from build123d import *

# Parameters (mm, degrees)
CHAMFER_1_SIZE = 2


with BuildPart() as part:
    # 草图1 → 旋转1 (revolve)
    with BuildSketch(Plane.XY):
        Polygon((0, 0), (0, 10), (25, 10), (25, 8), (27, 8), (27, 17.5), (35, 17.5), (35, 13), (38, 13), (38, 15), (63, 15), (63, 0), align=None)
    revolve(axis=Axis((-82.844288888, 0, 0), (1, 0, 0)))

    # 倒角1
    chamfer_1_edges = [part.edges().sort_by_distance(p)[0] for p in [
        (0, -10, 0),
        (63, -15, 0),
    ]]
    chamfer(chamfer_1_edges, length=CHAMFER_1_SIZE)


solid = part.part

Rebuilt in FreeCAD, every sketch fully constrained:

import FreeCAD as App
import Part
import Sketcher

V = App.Vector
Q = App.Units.Quantity


def edges_at(feature, points):
    """Names of the edges that pass closest to the given points."""
    edges = feature.Shape.Edges
    near = lambda p: min(range(len(edges)), key=lambda i: edges[i].distToShape(Part.Vertex(*p))[0])
    return sorted({f"Edge{near(p) + 1}" for p in points})

doc = App.newDocument("Part")
body = doc.addObject("PartDesign::Body", "Body")

# Sketch on XY plane
sketch1 = body.newObject("Sketcher::SketchObject", "Sketch")
sketch1.AttachmentSupport = (doc.getObject("XY_Plane"), [""])
sketch1.MapMode = "FlatFace"
sketch1.addGeometry([
    Part.LineSegment(V(0, 10, 0), V(0, 0, 0)),  # 0
    Part.LineSegment(V(0, 0, 0), V(63, 0, 0)),  # 1
    Part.LineSegment(V(63, 0, 0), V(63, 15, 0)),  # 2
    Part.LineSegment(V(63, 15, 0), V(38, 15, 0)),  # 3
    Part.LineSegment(V(38, 15, 0), V(38, 13, 0)),  # 4
    Part.LineSegment(V(38, 13, 0), V(35, 13, 0)),  # 5
    Part.LineSegment(V(35, 13, 0), V(35, 17.5, 0)),  # 6
    Part.LineSegment(V(35, 17.5, 0), V(27, 17.5, 0)),  # 7
    Part.LineSegment(V(27, 17.5, 0), V(27, 8, 0)),  # 8
    Part.LineSegment(V(27, 8, 0), V(25, 8, 0)),  # 9
    Part.LineSegment(V(25, 8, 0), V(25, 10, 0)),  # 10
    Part.LineSegment(V(25, 10, 0), V(0, 10, 0)),  # 11
], False)
sketch1.addConstraint([
    Sketcher.Constraint("Coincident", 0, 2, 1, 1),
    Sketcher.Constraint("Coincident", 1, 2, 2, 1),
    Sketcher.Constraint("Coincident", 2, 2, 3, 1),
    Sketcher.Constraint("Coincident", 3, 2, 4, 1),
    Sketcher.Constraint("Coincident", 4, 2, 5, 1),
    Sketcher.Constraint("Coincident", 5, 2, 6, 1),
    Sketcher.Constraint("Coincident", 6, 2, 7, 1),
    Sketcher.Constraint("Coincident", 7, 2, 8, 1),
    Sketcher.Constraint("Coincident", 8, 2, 9, 1),
    Sketcher.Constraint("Coincident", 9, 2, 10, 1),
    Sketcher.Constraint("Coincident", 10, 2, 11, 1),
    Sketcher.Constraint("Coincident", 11, 2, 0, 1),
    Sketcher.Constraint("Vertical", 0),
    Sketcher.Constraint("Horizontal", 1),
    Sketcher.Constraint("Vertical", 2),
    Sketcher.Constraint("Horizontal", 3),
    Sketcher.Constraint("Vertical", 4),
    Sketcher.Constraint("Horizontal", 5),
    Sketcher.Constraint("Vertical", 6),
    Sketcher.Constraint("Horizontal", 7),
    Sketcher.Constraint("Vertical", 8),
    Sketcher.Constraint("Horizontal", 9),
    Sketcher.Constraint("Vertical", 10),
    Sketcher.Constraint("Horizontal", 11),
    Sketcher.Constraint("Coincident", 0, 2, -1, 1),
    Sketcher.Constraint("Equal", 3, 11),
    Sketcher.Constraint("Equal", 9, 4),
    Sketcher.Constraint("Equal", 4, 10),
    Sketcher.Constraint("DistanceX", 1, 1, 1, 2, Q("63 mm")),
    Sketcher.Constraint("DistanceX", 3, 2, 3, 1, Q("25 mm")),
    Sketcher.Constraint("DistanceX", 5, 2, 5, 1, Q("3 mm")),
    Sketcher.Constraint("DistanceX", 7, 2, 7, 1, Q("8 mm")),
    Sketcher.Constraint("DistanceY", 0, 2, 0, 1, Q("10 mm")),
    Sketcher.Constraint("DistanceY", 2, 1, 2, 2, Q("15 mm")),
    Sketcher.Constraint("DistanceY", 6, 1, 6, 2, Q("4.5 mm")),
])
revolution = body.newObject("PartDesign::Revolution", "Revolution")
revolution.Profile = sketch1
revolution.ReferenceAxis = (sketch1, ["H_Axis"])
revolution.Angle = 360
doc.recompute()

chamfer = body.newObject("PartDesign::Chamfer", "Chamfer")
chamfer.Base = (revolution, edges_at(revolution, [(0, -10, 0), (63, -15, 0)]))
chamfer.Size = 2

doc.recompute()
